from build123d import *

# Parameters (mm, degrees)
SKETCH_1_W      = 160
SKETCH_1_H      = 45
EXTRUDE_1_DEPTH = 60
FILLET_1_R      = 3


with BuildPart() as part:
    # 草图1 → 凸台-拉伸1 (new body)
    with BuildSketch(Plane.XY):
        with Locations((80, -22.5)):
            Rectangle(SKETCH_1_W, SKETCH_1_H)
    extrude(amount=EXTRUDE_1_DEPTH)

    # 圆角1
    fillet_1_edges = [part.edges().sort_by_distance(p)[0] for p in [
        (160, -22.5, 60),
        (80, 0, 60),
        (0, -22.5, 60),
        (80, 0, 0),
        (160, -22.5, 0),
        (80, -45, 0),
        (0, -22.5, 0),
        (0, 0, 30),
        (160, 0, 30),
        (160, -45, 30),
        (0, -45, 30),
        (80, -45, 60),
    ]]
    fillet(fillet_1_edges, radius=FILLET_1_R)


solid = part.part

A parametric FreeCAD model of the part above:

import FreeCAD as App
import Part
import Sketcher
Q = App.Units.Quantity


def add_polygon(sketch, points):
    """Adds a closed chain of lines whose ends are joined by coincident constraints."""
    first, n = sketch.GeometryCount, len(points)
    for a, b in zip(points, points[1:] + points[:1]):
        sketch.addGeometry(Part.LineSegment(App.Vector(*a, 0), App.Vector(*b, 0)), False)
    for i in range(n):
        sketch.addConstraint(Sketcher.Constraint("Coincident", first + i, 2, first + (i + 1) % n, 1))

doc = App.newDocument("Part")
body = doc.addObject("PartDesign::Body", "Body")

# Sketch on XY plane
sketch1 = body.newObject("Sketcher::SketchObject", "Sketch")
sketch1.AttachmentSupport = (doc.getObject("XY_Plane"), [""])
sketch1.MapMode = "FlatFace"
add_polygon(sketch1, [(0, 0), (0, -45), (160, -45), (160, 0)])  # lines 0-3
sketch1.addConstraint(Sketcher.Constraint("Vertical", 0))
sketch1.addConstraint(Sketcher.Constraint("Horizontal", 1))
sketch1.addConstraint(Sketcher.Constraint("Vertical", 2))
sketch1.addConstraint(Sketcher.Constraint("Horizontal", 3))
sketch1.addConstraint(Sketcher.Constraint("Coincident", 3, 2, -1, 1))
sketch1.addConstraint(Sketcher.Constraint("DistanceX", 1, 1, 1, 2, Q("160 mm")))
sketch1.addConstraint(Sketcher.Constraint("DistanceY", 0, 2, 0, 1, Q("45 mm")))
pad1 = body.newObject("PartDesign::Pad", "Pad")
pad1.Profile = sketch1
pad1.Length = 60
doc.recompute()

fillet = body.newObject("PartDesign::Fillet", "Fillet")
fillet.Base = (pad1, ["Edge1"])
fillet.UseAllEdges = True
fillet.Radius = 3

doc.recompute()
